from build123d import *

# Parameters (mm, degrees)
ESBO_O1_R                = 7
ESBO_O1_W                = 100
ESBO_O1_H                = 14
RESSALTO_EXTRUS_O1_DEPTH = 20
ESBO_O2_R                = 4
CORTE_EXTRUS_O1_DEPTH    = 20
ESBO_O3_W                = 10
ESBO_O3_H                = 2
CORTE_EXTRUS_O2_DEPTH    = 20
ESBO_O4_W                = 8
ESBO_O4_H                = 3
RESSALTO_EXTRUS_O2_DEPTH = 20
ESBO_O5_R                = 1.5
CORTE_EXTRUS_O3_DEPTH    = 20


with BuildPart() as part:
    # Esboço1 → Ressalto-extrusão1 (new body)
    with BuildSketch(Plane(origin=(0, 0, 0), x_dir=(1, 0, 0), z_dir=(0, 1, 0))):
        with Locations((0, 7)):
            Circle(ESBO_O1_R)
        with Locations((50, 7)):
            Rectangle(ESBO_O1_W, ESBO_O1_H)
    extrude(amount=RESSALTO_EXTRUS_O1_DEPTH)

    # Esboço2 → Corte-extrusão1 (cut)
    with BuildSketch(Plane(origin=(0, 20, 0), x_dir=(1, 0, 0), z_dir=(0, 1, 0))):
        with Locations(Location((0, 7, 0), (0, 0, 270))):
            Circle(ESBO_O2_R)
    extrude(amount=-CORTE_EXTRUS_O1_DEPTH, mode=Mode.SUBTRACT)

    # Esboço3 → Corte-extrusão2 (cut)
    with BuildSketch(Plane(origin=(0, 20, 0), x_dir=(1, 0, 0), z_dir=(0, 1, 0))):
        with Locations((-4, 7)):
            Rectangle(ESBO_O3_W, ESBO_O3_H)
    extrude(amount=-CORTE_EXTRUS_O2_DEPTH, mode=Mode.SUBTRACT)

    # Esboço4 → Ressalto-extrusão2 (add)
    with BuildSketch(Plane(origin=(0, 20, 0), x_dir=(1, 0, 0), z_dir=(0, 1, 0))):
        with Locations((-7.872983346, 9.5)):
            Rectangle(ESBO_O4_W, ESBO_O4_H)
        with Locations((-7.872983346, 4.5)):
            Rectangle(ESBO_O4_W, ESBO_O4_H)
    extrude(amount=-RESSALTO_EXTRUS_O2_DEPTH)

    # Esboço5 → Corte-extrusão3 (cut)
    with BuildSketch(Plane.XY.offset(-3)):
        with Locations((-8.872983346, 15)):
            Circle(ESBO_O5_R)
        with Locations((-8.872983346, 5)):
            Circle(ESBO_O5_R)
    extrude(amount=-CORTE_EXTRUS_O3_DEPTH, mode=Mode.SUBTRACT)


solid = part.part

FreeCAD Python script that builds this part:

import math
import FreeCAD as App
import Part
import Sketcher

doc = App.newDocument("Part")
body = doc.addObject("PartDesign::Body", "Body")

sketch1 = body.newObject("Sketcher::SketchObject", "Sketch")
sketch1.AttachmentSupport = (doc.getObject("XZ_Plane"), [""])
sketch1.MapMode = "FlatFace"
sketch1.addGeometry([
    Part.LineSegment(App.Vector(0, 0, 0), App.Vector(100, 0, 0)),
    Part.LineSegment(App.Vector(100, 0, 0), App.Vector(100, -14, 0)),
    Part.LineSegment(App.Vector(100, -14, 0), App.Vector(0, -14, 0)),
    Part.ArcOfCircle(Part.Circle(App.Vector(0, -7, 0), App.Vector(0, 0, 1), 7), math.radians(90), math.radians(270)),
], False)
sketch1.addConstraint([
    Sketcher.Constraint("Coincident", 0, 2, 1, 1),
    Sketcher.Constraint("Coincident", 1, 2, 2, 1),
    Sketcher.Constraint("Tangent", 2, 2, 3, 2),
    Sketcher.Constraint("Tangent", 3, 1, 0, 1),
    Sketcher.Constraint("Horizontal", 0),
    Sketcher.Constraint("Vertical", 1),
    Sketcher.Constraint("Horizontal", 2),
    Sketcher.Constraint("Coincident", 3, 1, -1, 1),
    Sketcher.Constraint("Radius", 3, 7.0),
    Sketcher.Constraint("DistanceX", 0, 1, 0, 2, 100.0),
])
pad1 = body.newObject("PartDesign::Pad", "Pad")
pad1.Profile = sketch1
pad1.Length = 20
pad1.Reversed = True

sketch2 = body.newObject("Sketcher::SketchObject", "Sketch001")
sketch2.AttachmentSupport = (doc.getObject("XZ_Plane"), [""])
sketch2.MapMode = "FlatFace"
sketch2.AttachmentOffset = App.Placement(App.Vector(0, 0, -20), App.Rotation())
sketch2.addGeometry(Part.Circle(App.Vector(0, -7, 0), App.Vector(0, 0, 1), 4), False)
sketch2.addConstraint([
    Sketcher.Constraint("PointOnObject", 0, 3, -2),
    Sketcher.Constraint("Diameter", 0, 8.0),
    Sketcher.Constraint("DistanceY", 0, 3, -1, 1, 7.0),
])
pocket1 = body.newObject("PartDesign::Pocket", "Pocket")
pocket1.Profile = sketch2
pocket1.Length = 20
pocket1.Reversed = True

sketch3 = body.newObject("Sketcher::SketchObject", "Sketch002")
sketch3.AttachmentSupport = (doc.getObject("XZ_Plane"), [""])
sketch3.MapMode = "FlatFace"
sketch3.AttachmentOffset = App.Placement(App.Vector(0, 0, -20), App.Rotation())
sketch3.addGeometry([
    Part.LineSegment(App.Vector(-9, -8, 0), App.Vector(-9, -6, 0)),
    Part.LineSegment(App.Vector(-9, -6, 0), App.Vector(1, -6, 0)),
    Part.LineSegment(App.Vector(1, -6, 0), App.Vector(1, -8, 0)),
    Part.LineSegment(App.Vector(1, -8, 0), App.Vector(-9, -8, 0)),
], False)
sketch3.addConstraint([
    Sketcher.Constraint("Coincident", 0, 2, 1, 1),
    Sketcher.Constraint("Coincident", 1, 2, 2, 1),
    Sketcher.Constraint("Coincident", 2, 2, 3, 1),
    Sketcher.Constraint("Coincident", 3, 2, 0, 1),
    Sketcher.Constraint("Vertical", 0),
    Sketcher.Constraint("Horizontal", 1),
    Sketcher.Constraint("Vertical", 2),
    Sketcher.Constraint("Horizontal", 3),
    Sketcher.Constraint("DistanceX", 1, 1, 1, 2, 10.0),
    Sketcher.Constraint("DistanceY", 0, 1, 0, 2, 2.0),
    Sketcher.Constraint("DistanceX", 0, 2, -1, 1, 9.0),
    Sketcher.Constraint("DistanceY", 0, 2, -1, 1, 6.0),
])
pocket2 = body.newObject("PartDesign::Pocket", "Pocket001")
pocket2.Profile = sketch3
pocket2.Length = 20
pocket2.Reversed = True

sketch4 = body.newObject("Sketcher::SketchObject", "Sketch003")
sketch4.AttachmentSupport = (doc.getObject("XZ_Plane"), [""])
sketch4.MapMode = "FlatFace"
sketch4.AttachmentOffset = App.Placement(App.Vector(0, 0, -20), App.Rotation())
sketch4.addGeometry([
    Part.LineSegment(App.Vector(-11.9, -11, 0), App.Vector(-11.9, -8, 0)),
    Part.LineSegment(App.Vector(-11.9, -8, 0), App.Vector(-3.9, -8, 0)),
    Part.LineSegment(App.Vector(-3.9, -8, 0), App.Vector(-3.9, -11, 0)),
    Part.LineSegment(App.Vector(-3.9, -11, 0), App.Vector(-11.9, -11, 0)),
    Part.LineSegment(App.Vector(-11.9, -6, 0), App.Vector(-11.9, -3, 0)),
    Part.LineSegment(App.Vector(-11.9, -3, 0), App.Vector(-3.9, -3, 0)),
    Part.LineSegment(App.Vector(-3.9, -3, 0), App.Vector(-3.9, -6, 0)),
    Part.LineSegment(App.Vector(-3.9, -6, 0), App.Vector(-11.9, -6, 0)),
], False)
sketch4.addConstraint([
    Sketcher.Constraint("Coincident", 0, 2, 1, 1),
    Sketcher.Constraint("Coincident", 1, 2, 2, 1),
    Sketcher.Constraint("Coincident", 2, 2, 3, 1),
    Sketcher.Constraint("Coincident", 3, 2, 0, 1),
    Sketcher.Constraint("Coincident", 4, 2, 5, 1),
    Sketcher.Constraint("Coincident", 5, 2, 6, 1),
    Sketcher.Constraint("Coincident", 6, 2, 7, 1),
    Sketcher.Constraint("Coincident", 7, 2, 4, 1),
    Sketcher.Constraint("Vertical", 0),
    Sketcher.Constraint("Horizontal", 1),
    Sketcher.Constraint("Vertical", 2),
    Sketcher.Constraint("Horizontal", 3),
    Sketcher.Constraint("Vertical", 4),
    Sketcher.Constraint("Horizontal", 5),
    Sketcher.Constraint("Vertical", 6),
    Sketcher.Constraint("Horizontal", 7),
    Sketcher.Constraint("Vertical", 3, 2, 4, 2),
    Sketcher.Constraint("Vertical", 2, 2, 5, 2),
    Sketcher.Constraint("Equal", 2, 4),
    Sketcher.Constraint("DistanceX", 1, 1, 1, 2, 8.0),
    Sketcher.Constraint("DistanceY", 0, 1, 0, 2, 3.0),
    Sketcher.Constraint("DistanceY", 0, 2, -1, 1, 8.0),
    Sketcher.Constraint("DistanceY", 4, 2, -1, 1, 3.0),
    Sketcher.Constraint("DistanceX", 0, 2, -1, 1, 11.872983),
])
pad2 = body.newObject("PartDesign::Pad", "Pad001")
pad2.Profile = sketch4
pad2.Length = 20

sketch5 = body.newObject("Sketcher::SketchObject", "Sketch004")
sketch5.AttachmentSupport = (doc.getObject("XY_Plane"), [""])
sketch5.MapMode = "FlatFace"
sketch5.AttachmentOffset = App.Placement(App.Vector(0, 0, -3), App.Rotation())
sketch5.addGeometry([
    Part.Circle(App.Vector(-8.9, 15, 0), App.Vector(0, 0, 1), 1.5),
    Part.Circle(App.Vector(-8.9, 5, 0), App.Vector(0, 0, 1), 1.5),
], False)
sketch5.addConstraint([
    Sketcher.Constraint("Equal", 0, 1),
    Sketcher.Constraint("Vertical", 0, 3, 1, 3),
    Sketcher.Constraint("Diameter", 0, 3.0),
    Sketcher.Constraint("DistanceY", -1, 1, 0, 3, 15.0),
    Sketcher.Constraint("DistanceY", -1, 1, 1, 3, 5.0),
    Sketcher.Constraint("DistanceX", 0, 3, -1, 1, 8.872983),
])
pocket3 = body.newObject("PartDesign::Pocket", "Pocket002")
pocket3.Profile = sketch5
pocket3.Length = 20

doc.recompute()
